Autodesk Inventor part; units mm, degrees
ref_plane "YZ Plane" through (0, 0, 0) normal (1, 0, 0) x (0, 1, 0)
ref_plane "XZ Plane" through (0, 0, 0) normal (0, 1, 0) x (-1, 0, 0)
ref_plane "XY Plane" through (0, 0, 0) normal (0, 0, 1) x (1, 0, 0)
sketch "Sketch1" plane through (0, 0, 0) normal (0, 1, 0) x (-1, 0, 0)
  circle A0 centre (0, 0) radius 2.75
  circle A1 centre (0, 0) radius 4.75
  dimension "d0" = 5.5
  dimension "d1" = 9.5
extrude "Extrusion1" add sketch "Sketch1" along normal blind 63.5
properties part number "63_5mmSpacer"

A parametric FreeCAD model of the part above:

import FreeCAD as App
import Part
import Sketcher

V = App.Vector
Q = App.Units.Quantity

doc = App.newDocument("Part")
body = doc.addObject("PartDesign::Body", "Body")

sketch1 = body.newObject("Sketcher::SketchObject", "Sketch")
sketch1.AttachmentSupport = (doc.getObject("XZ_Plane"), [""])
sketch1.MapMode = "FlatFace"
sketch1.addGeometry(Part.Circle(V(0, 0, 0), V(0, 0, 1), 4.75), False)
sketch1.addGeometry(Part.Circle(V(0, 0, 0), V(0, 0, 1), 2.75), False)
sketch1.addConstraint(Sketcher.Constraint("Coincident", 0, 3, -1, 1))
sketch1.addConstraint(Sketcher.Constraint("Coincident", 1, 3, -1, 1))
sketch1.addConstraint(Sketcher.Constraint("Diameter", 0, Q("9.5 mm")))
sketch1.addConstraint(Sketcher.Constraint("Diameter", 1, Q("5.5 mm")))
pad1 = body.newObject("PartDesign::Pad", "Pad")
pad1.Profile = sketch1
pad1.Length = 63.5
pad1.Reversed = True

doc.recompute()
